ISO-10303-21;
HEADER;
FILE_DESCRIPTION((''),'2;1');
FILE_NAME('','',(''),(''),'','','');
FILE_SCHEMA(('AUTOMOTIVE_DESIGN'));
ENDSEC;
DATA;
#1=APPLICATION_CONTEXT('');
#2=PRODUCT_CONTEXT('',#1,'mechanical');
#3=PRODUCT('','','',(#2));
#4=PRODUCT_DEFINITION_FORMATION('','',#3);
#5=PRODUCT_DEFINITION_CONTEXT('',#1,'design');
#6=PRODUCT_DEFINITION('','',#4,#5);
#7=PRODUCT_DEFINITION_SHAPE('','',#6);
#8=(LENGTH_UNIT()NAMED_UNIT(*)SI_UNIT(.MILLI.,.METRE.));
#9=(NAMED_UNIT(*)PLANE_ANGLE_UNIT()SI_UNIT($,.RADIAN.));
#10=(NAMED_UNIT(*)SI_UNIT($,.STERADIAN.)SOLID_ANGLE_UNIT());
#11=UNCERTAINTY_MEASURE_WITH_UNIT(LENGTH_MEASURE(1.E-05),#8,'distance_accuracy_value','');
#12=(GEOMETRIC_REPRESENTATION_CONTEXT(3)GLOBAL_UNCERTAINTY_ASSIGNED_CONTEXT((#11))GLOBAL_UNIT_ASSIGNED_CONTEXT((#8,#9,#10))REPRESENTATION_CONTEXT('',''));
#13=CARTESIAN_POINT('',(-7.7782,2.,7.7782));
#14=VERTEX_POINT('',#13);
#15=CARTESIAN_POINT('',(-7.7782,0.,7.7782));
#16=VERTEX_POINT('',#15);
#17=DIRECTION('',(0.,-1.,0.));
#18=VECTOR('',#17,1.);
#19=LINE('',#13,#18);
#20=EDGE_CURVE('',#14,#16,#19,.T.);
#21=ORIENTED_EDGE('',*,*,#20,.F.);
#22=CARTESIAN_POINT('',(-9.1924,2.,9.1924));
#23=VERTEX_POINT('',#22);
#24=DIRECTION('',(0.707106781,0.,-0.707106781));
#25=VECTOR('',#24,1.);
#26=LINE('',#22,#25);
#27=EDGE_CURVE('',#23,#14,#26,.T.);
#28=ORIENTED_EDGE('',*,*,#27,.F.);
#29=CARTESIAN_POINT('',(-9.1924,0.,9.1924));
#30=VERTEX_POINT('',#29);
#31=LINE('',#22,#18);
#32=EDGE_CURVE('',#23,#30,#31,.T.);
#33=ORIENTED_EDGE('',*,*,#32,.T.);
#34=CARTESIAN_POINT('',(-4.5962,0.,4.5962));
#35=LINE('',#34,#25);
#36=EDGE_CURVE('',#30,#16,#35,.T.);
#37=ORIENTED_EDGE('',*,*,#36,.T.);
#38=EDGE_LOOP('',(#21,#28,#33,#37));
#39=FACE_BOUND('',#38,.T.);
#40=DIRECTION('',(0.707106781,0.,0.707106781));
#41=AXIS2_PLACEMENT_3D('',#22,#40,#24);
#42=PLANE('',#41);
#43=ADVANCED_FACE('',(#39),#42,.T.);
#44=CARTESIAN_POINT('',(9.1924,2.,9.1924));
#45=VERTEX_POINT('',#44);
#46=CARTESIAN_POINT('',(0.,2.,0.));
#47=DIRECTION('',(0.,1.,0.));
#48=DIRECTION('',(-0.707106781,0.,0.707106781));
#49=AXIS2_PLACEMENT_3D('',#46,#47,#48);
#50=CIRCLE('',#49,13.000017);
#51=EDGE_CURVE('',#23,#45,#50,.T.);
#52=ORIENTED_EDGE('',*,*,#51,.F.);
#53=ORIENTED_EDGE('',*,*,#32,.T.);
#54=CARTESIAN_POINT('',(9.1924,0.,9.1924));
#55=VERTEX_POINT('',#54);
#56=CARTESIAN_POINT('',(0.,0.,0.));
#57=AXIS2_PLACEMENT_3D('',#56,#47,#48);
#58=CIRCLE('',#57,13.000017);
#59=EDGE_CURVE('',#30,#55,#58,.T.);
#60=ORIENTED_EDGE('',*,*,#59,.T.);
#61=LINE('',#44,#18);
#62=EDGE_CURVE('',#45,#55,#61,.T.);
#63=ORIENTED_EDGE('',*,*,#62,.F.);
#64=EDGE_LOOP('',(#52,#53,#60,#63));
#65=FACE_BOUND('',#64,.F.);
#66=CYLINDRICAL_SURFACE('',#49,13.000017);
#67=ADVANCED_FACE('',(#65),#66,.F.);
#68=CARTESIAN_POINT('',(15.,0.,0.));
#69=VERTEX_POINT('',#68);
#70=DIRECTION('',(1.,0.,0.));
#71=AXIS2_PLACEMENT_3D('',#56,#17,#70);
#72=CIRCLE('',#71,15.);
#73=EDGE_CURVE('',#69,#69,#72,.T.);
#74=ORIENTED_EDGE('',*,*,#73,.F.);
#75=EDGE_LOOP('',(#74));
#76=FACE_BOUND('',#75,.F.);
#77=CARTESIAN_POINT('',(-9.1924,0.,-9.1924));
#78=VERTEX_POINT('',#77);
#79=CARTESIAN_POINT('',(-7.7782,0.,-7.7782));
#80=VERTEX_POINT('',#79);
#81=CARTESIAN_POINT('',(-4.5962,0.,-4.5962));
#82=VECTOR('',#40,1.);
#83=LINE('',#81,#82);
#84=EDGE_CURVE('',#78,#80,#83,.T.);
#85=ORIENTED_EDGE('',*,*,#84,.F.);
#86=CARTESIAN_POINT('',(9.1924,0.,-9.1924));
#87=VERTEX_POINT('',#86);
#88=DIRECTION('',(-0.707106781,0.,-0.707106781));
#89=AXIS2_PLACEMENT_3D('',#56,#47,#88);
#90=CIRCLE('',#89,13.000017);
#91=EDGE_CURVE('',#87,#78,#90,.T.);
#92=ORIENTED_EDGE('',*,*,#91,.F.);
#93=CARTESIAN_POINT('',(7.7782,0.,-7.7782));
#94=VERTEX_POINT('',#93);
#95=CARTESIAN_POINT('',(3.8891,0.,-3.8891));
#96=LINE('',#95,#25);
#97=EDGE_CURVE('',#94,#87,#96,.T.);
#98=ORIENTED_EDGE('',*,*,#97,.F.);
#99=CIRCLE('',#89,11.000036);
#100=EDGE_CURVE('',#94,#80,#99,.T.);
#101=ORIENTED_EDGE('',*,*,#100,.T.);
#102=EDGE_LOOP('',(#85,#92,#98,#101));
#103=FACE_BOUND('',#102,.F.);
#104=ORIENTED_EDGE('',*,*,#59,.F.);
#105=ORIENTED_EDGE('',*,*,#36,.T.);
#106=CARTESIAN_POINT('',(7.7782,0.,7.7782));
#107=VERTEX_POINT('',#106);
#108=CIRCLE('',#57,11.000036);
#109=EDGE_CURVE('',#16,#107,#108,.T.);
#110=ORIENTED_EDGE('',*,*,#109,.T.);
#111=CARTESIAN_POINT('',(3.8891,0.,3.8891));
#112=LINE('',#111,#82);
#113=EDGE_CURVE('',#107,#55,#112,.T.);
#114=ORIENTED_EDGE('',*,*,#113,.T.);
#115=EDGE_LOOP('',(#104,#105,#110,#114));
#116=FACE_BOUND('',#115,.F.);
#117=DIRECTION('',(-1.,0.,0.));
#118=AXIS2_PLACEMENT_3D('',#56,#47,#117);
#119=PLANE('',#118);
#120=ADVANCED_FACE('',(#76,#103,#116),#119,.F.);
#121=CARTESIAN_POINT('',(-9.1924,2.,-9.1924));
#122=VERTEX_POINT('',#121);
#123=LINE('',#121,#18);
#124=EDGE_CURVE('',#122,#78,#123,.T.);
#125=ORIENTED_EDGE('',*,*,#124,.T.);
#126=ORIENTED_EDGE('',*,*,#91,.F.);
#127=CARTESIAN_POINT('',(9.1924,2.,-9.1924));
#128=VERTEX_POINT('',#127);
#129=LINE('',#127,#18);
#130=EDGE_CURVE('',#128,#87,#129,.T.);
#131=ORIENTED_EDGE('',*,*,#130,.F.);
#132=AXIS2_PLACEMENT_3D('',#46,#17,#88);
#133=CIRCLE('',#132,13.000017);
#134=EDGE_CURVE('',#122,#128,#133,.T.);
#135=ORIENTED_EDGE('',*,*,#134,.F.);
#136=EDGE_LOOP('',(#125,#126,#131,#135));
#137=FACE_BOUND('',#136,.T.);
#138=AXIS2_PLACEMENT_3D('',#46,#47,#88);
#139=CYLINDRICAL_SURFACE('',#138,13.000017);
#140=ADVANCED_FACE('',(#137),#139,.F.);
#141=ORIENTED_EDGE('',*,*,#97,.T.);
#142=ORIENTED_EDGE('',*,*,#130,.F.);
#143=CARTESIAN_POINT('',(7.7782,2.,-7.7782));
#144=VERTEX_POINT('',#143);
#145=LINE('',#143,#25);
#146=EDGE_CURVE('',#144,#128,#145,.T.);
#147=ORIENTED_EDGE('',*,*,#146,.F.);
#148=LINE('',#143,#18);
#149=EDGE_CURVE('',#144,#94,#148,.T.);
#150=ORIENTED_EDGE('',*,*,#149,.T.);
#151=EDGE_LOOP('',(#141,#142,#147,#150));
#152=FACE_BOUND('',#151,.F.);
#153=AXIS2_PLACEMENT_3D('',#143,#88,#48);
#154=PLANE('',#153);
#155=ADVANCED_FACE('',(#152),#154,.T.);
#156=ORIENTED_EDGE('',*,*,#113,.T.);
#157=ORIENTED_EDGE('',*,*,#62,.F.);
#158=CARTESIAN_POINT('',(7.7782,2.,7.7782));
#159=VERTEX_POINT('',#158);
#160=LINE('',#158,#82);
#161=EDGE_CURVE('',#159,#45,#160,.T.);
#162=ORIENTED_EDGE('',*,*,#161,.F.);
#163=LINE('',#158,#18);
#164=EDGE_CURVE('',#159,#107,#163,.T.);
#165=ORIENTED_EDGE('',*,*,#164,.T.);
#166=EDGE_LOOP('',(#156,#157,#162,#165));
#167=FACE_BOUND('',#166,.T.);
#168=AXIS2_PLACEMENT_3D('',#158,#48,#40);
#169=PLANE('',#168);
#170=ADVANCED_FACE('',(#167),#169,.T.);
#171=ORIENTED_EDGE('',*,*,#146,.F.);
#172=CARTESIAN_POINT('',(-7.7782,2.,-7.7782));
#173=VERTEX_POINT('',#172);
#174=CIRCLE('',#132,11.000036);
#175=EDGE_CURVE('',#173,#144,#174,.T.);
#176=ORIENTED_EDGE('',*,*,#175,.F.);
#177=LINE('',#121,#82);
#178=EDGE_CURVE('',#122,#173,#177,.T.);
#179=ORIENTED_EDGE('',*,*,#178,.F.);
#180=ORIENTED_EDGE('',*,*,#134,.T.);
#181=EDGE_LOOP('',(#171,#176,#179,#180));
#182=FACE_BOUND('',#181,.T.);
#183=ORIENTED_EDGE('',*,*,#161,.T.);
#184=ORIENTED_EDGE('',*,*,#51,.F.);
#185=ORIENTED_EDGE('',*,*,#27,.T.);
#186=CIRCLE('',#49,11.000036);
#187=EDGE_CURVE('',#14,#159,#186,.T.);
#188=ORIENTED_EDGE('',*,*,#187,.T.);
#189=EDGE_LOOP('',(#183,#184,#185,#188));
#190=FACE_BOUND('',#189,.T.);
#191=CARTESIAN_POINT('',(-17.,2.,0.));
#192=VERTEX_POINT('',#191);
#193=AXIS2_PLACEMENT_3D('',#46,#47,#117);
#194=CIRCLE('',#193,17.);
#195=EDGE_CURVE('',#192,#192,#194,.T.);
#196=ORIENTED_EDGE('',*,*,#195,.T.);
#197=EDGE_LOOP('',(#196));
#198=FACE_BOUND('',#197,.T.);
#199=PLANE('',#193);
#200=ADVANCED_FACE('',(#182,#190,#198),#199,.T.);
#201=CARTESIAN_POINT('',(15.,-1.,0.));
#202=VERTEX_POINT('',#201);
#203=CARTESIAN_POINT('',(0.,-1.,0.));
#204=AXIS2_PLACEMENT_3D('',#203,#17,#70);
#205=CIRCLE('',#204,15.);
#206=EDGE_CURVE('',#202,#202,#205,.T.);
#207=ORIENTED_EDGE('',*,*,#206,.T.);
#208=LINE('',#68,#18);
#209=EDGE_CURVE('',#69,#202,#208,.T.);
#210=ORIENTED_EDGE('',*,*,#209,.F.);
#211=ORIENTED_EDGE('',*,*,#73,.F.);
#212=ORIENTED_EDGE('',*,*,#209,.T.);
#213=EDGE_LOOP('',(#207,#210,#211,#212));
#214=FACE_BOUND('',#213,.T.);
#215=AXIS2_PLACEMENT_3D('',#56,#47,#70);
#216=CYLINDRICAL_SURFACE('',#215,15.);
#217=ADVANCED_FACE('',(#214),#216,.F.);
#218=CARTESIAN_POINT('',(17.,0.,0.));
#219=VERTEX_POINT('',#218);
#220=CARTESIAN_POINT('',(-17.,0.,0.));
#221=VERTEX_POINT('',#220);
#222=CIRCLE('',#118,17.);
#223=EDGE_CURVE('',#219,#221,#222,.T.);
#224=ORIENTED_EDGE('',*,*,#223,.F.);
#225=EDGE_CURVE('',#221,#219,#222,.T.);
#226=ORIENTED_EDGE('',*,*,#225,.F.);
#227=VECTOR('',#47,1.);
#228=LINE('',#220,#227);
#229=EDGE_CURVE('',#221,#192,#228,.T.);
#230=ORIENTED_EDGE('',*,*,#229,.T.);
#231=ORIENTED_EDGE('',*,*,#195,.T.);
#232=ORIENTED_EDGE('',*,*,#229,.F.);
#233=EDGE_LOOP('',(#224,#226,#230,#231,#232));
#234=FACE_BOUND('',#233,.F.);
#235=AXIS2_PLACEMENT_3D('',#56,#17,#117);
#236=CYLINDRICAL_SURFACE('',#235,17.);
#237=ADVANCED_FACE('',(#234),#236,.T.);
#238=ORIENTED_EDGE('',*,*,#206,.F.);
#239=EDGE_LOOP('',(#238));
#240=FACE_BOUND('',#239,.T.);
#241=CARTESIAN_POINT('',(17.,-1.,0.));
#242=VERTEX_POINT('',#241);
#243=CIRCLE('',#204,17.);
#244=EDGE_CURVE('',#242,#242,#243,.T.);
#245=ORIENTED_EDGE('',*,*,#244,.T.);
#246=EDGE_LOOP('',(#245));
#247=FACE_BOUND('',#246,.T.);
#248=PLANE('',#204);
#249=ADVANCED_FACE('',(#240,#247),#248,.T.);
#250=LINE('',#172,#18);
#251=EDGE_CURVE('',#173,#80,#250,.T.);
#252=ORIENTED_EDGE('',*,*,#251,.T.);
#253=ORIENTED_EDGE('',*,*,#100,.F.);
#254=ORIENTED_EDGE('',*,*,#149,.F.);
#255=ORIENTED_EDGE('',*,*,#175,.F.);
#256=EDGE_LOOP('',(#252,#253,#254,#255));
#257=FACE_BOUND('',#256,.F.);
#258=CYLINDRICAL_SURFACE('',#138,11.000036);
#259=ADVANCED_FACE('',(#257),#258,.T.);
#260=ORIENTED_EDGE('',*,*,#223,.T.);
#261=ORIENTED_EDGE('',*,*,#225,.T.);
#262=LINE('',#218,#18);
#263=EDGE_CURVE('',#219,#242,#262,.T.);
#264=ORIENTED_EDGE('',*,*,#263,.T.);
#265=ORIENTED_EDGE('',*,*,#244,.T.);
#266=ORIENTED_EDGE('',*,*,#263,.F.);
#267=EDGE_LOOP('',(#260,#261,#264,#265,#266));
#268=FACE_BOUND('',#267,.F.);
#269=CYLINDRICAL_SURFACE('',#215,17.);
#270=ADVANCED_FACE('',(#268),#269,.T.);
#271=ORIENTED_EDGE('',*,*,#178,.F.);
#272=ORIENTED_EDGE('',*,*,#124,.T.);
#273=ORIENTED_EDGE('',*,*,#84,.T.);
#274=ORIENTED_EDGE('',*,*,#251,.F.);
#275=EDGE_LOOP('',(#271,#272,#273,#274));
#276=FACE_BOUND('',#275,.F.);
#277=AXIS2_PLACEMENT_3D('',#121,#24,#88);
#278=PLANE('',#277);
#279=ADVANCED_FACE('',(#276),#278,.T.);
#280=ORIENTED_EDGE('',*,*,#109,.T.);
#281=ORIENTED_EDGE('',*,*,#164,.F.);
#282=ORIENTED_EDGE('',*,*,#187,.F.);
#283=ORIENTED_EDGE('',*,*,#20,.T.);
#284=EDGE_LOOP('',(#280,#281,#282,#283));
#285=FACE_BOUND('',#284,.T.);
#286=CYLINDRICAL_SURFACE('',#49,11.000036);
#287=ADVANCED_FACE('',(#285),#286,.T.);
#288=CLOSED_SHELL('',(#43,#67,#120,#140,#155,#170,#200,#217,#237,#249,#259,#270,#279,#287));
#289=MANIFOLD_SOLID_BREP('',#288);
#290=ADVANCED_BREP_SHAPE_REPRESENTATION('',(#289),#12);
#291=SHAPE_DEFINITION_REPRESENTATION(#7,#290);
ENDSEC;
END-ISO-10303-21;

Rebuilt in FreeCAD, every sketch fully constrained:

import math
import FreeCAD as App
import Part
import Sketcher

V = App.Vector

doc = App.newDocument("Part")
body = doc.addObject("PartDesign::Body", "Body")

sketch1 = body.newObject("Sketcher::SketchObject", "Sketch")
sketch1.AttachmentSupport = (doc.getObject("XZ_Plane"), [""])
sketch1.MapMode = "FlatFace"
sketch1.addGeometry(Part.Circle(V(0, 0, 0), V(0, 0, 1), 17), False)
sketch1.addConstraint([
    Sketcher.Constraint("Coincident", 0, 3, -1, 1),
    Sketcher.Constraint("Diameter", 0, 34.0),
])
pad1 = body.newObject("PartDesign::Pad", "Pad")
pad1.Profile = sketch1
pad1.Length = 2
pad1.Reversed = True

sketch2 = body.newObject("Sketcher::SketchObject", "Sketch001")
sketch2.AttachmentSupport = (doc.getObject("XZ_Plane"), [""])
sketch2.MapMode = "FlatFace"
sketch2.addGeometry([
    Part.Circle(V(0, 0, 0), V(0, 0, 1), 17),
    Part.Circle(V(0, 0, 0), V(0, 0, 1), 15),
], False)
sketch2.addConstraint([
    Sketcher.Constraint("Coincident", 0, 3, -1, 1),
    Sketcher.Constraint("Coincident", 1, 3, -1, 1),
    Sketcher.Constraint("Diameter", 0, 34.0),
    Sketcher.Constraint("Diameter", 1, 30.0),
])
pad2 = body.newObject("PartDesign::Pad", "Pad001")
pad2.Profile = sketch2
pad2.Length = 1

sketch3 = body.newObject("Sketcher::SketchObject", "Sketch002")
sketch3.AttachmentSupport = (doc.getObject("XZ_Plane"), [""])
sketch3.MapMode = "FlatFace"
sketch3.AttachmentOffset = App.Placement(V(0, 0, -2), App.Rotation())
sketch3.addGeometry([
    Part.LineSegment(V(-7.8, 7.8, 0), V(-9.2, 9.2, 0)),
    Part.ArcOfCircle(Part.Circle(V(0, 0, 0), V(0, 0, 1), 13), math.radians(45), math.radians(135)),
    Part.LineSegment(V(9.2, 9.2, 0), V(7.8, 7.8, 0)),
    Part.ArcOfCircle(Part.Circle(V(0, 0, 0), V(0, 0, 1), 11), math.radians(45), math.radians(135)),
], False)
sketch3.addConstraint([
    Sketcher.Constraint("Coincident", 0, 2, 1, 2),
    Sketcher.Constraint("Coincident", 1, 1, 2, 1),
    Sketcher.Constraint("Coincident", 2, 2, 3, 1),
    Sketcher.Constraint("Coincident", 3, 2, 0, 1),
    Sketcher.Constraint("Coincident", 1, 3, -1, 1),
    Sketcher.Constraint("Coincident", 3, 3, -1, 1),
    Sketcher.Constraint("Perpendicular", 0, 2),
    Sketcher.Constraint("Horizontal", 0, 2, 1, 1),
    Sketcher.Constraint("Horizontal", 2, 2, 3, 2),
    Sketcher.Constraint("Distance", 0, 2.0),
    Sketcher.Constraint("Radius", 1, 13.0),
    Sketcher.Constraint("DistanceX", 0, 2, -1, 1, 9.1924),
])
pocket1 = body.newObject("PartDesign::Pocket", "Pocket")
pocket1.Profile = sketch3
pocket1.Type = "ThroughAll"
pocket1.Reversed = True
doc.recompute()

mirrored = body.newObject("PartDesign::Mirrored", "Mirrored")
mirrored.Originals = [pocket1]
mirrored.MirrorPlane = (doc.getObject("XY_Plane"), [""])
body.Tip = mirrored

doc.recompute()
